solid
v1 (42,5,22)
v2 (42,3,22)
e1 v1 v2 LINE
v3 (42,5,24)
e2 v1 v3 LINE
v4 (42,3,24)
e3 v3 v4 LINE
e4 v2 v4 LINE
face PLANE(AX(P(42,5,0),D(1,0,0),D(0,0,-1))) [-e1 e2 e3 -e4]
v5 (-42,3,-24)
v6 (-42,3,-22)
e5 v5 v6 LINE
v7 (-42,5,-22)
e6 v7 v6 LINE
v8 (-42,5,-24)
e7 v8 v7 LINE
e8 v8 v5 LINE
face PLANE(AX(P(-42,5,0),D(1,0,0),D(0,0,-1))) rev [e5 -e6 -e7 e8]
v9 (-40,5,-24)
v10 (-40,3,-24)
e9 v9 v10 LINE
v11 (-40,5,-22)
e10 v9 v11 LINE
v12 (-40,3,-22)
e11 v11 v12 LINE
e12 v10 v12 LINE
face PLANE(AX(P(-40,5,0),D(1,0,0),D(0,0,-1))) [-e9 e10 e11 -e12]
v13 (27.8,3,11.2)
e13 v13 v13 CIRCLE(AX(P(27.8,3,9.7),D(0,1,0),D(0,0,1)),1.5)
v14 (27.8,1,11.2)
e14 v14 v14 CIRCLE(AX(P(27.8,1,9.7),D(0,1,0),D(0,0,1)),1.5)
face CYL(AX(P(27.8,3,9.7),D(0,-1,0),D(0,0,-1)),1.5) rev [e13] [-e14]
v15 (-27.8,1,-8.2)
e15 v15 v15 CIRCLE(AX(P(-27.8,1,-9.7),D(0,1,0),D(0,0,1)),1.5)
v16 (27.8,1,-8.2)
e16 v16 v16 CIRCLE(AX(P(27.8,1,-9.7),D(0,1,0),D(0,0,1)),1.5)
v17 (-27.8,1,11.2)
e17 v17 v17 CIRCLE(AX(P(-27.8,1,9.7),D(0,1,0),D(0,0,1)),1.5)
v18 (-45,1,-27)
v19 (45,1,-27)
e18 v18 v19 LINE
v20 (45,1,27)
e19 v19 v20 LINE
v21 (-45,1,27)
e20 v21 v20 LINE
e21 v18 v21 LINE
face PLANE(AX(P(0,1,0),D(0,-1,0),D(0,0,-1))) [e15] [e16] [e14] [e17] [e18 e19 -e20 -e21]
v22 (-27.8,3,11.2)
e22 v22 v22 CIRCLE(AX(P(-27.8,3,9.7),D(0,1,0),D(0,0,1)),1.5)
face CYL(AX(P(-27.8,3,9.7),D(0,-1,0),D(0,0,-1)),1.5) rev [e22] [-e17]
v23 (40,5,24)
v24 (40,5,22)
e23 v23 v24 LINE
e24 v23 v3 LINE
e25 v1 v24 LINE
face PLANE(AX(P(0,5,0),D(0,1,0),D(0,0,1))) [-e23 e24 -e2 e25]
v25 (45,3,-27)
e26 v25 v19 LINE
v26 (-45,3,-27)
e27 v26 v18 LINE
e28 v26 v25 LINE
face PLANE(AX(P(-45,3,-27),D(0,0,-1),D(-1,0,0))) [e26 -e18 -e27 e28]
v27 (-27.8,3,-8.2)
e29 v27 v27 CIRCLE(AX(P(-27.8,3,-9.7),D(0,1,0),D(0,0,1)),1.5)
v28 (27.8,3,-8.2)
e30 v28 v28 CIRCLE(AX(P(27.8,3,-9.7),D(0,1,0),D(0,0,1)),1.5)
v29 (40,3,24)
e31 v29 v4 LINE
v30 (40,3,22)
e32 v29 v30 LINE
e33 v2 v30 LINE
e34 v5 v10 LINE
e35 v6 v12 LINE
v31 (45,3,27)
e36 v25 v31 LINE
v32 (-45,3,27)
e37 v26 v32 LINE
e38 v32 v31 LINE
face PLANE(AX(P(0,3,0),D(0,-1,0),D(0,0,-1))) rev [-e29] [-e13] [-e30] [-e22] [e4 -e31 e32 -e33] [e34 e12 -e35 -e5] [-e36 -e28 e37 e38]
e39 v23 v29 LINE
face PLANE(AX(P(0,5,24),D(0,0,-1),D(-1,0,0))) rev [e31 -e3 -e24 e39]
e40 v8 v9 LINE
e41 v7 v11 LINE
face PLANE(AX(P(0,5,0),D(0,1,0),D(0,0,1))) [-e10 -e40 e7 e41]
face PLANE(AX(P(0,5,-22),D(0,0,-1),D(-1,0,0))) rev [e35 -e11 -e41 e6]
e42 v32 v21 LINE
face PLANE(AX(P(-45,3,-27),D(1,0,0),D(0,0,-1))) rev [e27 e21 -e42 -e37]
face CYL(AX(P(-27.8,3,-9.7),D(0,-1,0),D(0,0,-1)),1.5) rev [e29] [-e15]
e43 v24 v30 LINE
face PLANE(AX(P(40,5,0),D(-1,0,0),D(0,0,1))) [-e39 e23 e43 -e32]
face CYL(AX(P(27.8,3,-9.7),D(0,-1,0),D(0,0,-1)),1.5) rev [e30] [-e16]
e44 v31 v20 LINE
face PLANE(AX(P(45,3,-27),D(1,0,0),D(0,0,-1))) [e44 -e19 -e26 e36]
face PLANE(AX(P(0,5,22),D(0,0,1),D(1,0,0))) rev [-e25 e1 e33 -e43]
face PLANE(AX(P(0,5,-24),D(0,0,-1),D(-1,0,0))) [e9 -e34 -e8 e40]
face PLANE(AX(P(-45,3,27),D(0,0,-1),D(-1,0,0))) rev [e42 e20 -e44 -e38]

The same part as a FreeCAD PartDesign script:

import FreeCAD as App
import Part
import Sketcher
Q = App.Units.Quantity


def add_polygon(sketch, points):
    """Adds a closed chain of lines whose ends are joined by coincident constraints."""
    first, n = sketch.GeometryCount, len(points)
    for a, b in zip(points, points[1:] + points[:1]):
        sketch.addGeometry(Part.LineSegment(App.Vector(*a, 0), App.Vector(*b, 0)), False)
    for i in range(n):
        sketch.addConstraint(Sketcher.Constraint("Coincident", first + i, 2, first + (i + 1) % n, 1))

doc = App.newDocument("Part")
body = doc.addObject("PartDesign::Body", "Body")

# Sketch on XZ plane
sketch1 = body.newObject("Sketcher::SketchObject", "Sketch")
sketch1.AttachmentSupport = (doc.getObject("XZ_Plane"), [""])
sketch1.MapMode = "FlatFace"
sketch1.AttachmentOffset = App.Placement(App.Vector(0, 0, -1), App.Rotation())
add_polygon(sketch1, [(-45, -27), (-45, 27), (45, 27), (45, -27)])  # lines 0-3
sketch1.addGeometry(Part.Circle(App.Vector(-27.8, 9.7, 0), App.Vector(0, 0, 1), 1.5), False)  # 4
sketch1.addGeometry(Part.Circle(App.Vector(27.8, 9.7, 0), App.Vector(0, 0, 1), 1.5), False)  # 5
sketch1.addGeometry(Part.Circle(App.Vector(-27.8, -9.7, 0), App.Vector(0, 0, 1), 1.5), False)  # 6
sketch1.addGeometry(Part.Circle(App.Vector(27.8, -9.7, 0), App.Vector(0, 0, 1), 1.5), False)  # 7
sketch1.addConstraint(Sketcher.Constraint("Vertical", 0))
sketch1.addConstraint(Sketcher.Constraint("Horizontal", 1))
sketch1.addConstraint(Sketcher.Constraint("Vertical", 2))
sketch1.addConstraint(Sketcher.Constraint("Horizontal", 3))
sketch1.addConstraint(Sketcher.Constraint("Equal", 4, 5))
sketch1.addConstraint(Sketcher.Constraint("Equal", 5, 6))
sketch1.addConstraint(Sketcher.Constraint("Equal", 6, 7))
sketch1.addConstraint(Sketcher.Constraint("Symmetric", 5, 3, 6, 3, -1, 1))
sketch1.addConstraint(Sketcher.Constraint("Symmetric", 4, 3, 7, 3, -1, 1))
sketch1.addConstraint(Sketcher.Constraint("Symmetric", 0, 2, 2, 2, -1, 1))
sketch1.addConstraint(Sketcher.Constraint("Symmetric", 4, 3, 5, 3, -2))
sketch1.addConstraint(Sketcher.Constraint("Diameter", 4, Q("3 mm")))
sketch1.addConstraint(Sketcher.Constraint("DistanceX", 1, 1, 1, 2, Q("90 mm")))
sketch1.addConstraint(Sketcher.Constraint("DistanceY", 0, 1, 0, 2, Q("54 mm")))
sketch1.addConstraint(Sketcher.Constraint("DistanceX", 4, 3, -1, 1, Q("27.8 mm")))
sketch1.addConstraint(Sketcher.Constraint("DistanceY", -1, 1, 4, 3, Q("9.7 mm")))
pad1 = body.newObject("PartDesign::Pad", "Pad")
pad1.Profile = sketch1
pad1.Length = 2
pad1.Reversed = True

# Sketch on XZ plane
sketch2 = body.newObject("Sketcher::SketchObject", "Sketch001")
sketch2.AttachmentSupport = (doc.getObject("XZ_Plane"), [""])
sketch2.MapMode = "FlatFace"
sketch2.AttachmentOffset = App.Placement(App.Vector(0, 0, -1), App.Rotation())
add_polygon(sketch2, [(-42, -24), (-42, -22), (-40, -22), (-40, -24)])  # lines 0-3
add_polygon(sketch2, [(40, 22), (40, 24), (42, 24), (42, 22)])  # lines 4-7
sketch2.addConstraint(Sketcher.Constraint("Vertical", 0))
sketch2.addConstraint(Sketcher.Constraint("Horizontal", 1))
sketch2.addConstraint(Sketcher.Constraint("Vertical", 2))
sketch2.addConstraint(Sketcher.Constraint("Horizontal", 3))
sketch2.addConstraint(Sketcher.Constraint("Vertical", 4))
sketch2.addConstraint(Sketcher.Constraint("Horizontal", 5))
sketch2.addConstraint(Sketcher.Constraint("Vertical", 6))
sketch2.addConstraint(Sketcher.Constraint("Horizontal", 7))
sketch2.addConstraint(Sketcher.Constraint("Symmetric", 2, 2, 4, 2, -1, 1))
sketch2.addConstraint(Sketcher.Constraint("Symmetric", 0, 2, 6, 2, -1, 1))
sketch2.addConstraint(Sketcher.Constraint("Equal", 7, 0))
sketch2.addConstraint(Sketcher.Constraint("DistanceX", 1, 1, 1, 2, Q("2 mm")))
sketch2.addConstraint(Sketcher.Constraint("DistanceX", 0, 2, -1, 1, Q("42 mm")))
sketch2.addConstraint(Sketcher.Constraint("DistanceY", 0, 2, -1, 1, Q("22 mm")))
pad2 = body.newObject("PartDesign::Pad", "Pad001")
pad2.Profile = sketch2
pad2.Length = 4
pad2.Reversed = True

doc.recompute()
